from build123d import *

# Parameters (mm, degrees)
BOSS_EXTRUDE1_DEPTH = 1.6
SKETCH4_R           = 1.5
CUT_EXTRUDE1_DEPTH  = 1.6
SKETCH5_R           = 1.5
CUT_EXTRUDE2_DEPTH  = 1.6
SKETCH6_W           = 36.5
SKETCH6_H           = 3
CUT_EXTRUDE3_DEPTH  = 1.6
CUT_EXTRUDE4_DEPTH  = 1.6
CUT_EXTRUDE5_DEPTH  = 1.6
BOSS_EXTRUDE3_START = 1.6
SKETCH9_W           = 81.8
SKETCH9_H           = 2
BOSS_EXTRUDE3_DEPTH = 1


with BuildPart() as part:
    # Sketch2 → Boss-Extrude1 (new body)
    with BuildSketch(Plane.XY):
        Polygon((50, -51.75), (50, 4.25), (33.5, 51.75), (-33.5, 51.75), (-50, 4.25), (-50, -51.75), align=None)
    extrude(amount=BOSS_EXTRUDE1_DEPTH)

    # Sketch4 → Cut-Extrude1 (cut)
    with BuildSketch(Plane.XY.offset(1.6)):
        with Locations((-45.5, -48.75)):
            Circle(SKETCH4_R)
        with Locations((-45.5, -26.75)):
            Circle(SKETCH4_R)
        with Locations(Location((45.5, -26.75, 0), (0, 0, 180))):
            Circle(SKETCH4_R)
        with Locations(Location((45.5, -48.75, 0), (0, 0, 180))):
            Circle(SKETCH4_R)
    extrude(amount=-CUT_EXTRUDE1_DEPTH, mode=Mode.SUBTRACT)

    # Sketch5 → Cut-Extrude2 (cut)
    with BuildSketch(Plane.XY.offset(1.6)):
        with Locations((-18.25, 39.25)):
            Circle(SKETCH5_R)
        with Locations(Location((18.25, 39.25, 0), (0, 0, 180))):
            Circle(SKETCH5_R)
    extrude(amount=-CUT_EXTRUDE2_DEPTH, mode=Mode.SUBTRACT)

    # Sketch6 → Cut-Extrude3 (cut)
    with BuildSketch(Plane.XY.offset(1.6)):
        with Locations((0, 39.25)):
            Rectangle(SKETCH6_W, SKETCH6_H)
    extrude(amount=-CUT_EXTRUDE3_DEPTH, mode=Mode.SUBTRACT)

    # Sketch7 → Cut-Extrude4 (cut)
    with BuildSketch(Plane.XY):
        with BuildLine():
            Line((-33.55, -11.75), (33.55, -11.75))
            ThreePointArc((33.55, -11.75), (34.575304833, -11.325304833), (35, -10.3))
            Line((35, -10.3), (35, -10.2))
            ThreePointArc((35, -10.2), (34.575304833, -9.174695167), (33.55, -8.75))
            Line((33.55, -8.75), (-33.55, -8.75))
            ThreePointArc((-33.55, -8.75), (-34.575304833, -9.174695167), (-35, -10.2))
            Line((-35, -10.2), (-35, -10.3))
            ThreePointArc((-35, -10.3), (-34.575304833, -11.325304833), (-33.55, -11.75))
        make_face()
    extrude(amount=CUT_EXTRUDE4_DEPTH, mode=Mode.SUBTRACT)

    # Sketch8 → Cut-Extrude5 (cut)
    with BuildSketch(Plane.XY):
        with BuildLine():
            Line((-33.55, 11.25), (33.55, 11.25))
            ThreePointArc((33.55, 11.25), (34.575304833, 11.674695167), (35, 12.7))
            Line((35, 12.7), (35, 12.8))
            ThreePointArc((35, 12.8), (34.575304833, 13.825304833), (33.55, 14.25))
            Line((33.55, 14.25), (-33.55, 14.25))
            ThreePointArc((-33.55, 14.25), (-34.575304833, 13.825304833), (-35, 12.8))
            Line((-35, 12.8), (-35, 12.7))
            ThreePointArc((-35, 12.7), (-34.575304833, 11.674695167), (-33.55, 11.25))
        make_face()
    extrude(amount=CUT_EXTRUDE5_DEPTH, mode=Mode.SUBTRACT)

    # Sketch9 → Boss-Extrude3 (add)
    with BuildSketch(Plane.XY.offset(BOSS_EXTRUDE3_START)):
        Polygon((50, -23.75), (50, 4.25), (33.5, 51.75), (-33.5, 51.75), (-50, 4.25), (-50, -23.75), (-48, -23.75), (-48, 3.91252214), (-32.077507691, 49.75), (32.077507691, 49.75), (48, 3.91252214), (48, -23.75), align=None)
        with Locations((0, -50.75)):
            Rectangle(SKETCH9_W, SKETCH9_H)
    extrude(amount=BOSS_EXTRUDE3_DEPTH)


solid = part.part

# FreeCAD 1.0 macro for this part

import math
import FreeCAD as App
import Part
import Sketcher
from FreeCAD import Vector
Q = App.Units.Quantity


def add_polygon(sketch, points):
    """Adds a closed chain of lines whose ends are joined by coincident constraints."""
    first, n = sketch.GeometryCount, len(points)
    for a, b in zip(points, points[1:] + points[:1]):
        sketch.addGeometry(Part.LineSegment(App.Vector(*a, 0), App.Vector(*b, 0)), False)
    for i in range(n):
        sketch.addConstraint(Sketcher.Constraint("Coincident", first + i, 2, first + (i + 1) % n, 1))

doc = App.newDocument("Part")
body = doc.addObject("PartDesign::Body", "Body")

# Sketch on XY plane
sketch1 = doc.addObject("Sketcher::SketchObject", "Sketch")
body.addObject(sketch1)
sketch1.AttachmentSupport = (doc.XY_Plane, [""])
sketch1.MapMode = "FlatFace"
add_polygon(sketch1, [(50, -52), (50, 4), (34, 52), (-34, 52), (-50, 4), (-50, -52)])  # lines 0-5
sketch1.addConstraint(Sketcher.Constraint("Vertical", 0))
sketch1.addConstraint(Sketcher.Constraint("Horizontal", 2))
sketch1.addConstraint(Sketcher.Constraint("Vertical", 4))
sketch1.addConstraint(Sketcher.Constraint("Horizontal", 5))
sketch1.addConstraint(Sketcher.Constraint("Symmetric", 0, 2, 3, 2, -2))
sketch1.addConstraint(Sketcher.Constraint("Equal", 1, 3))
sketch1.addConstraint(Sketcher.Constraint("DistanceX", 2, 2, 2, 1, Q("67 mm")))
sketch1.addConstraint(Sketcher.Constraint("DistanceX", 5, 1, 5, 2, Q("100 mm")))
sketch1.addConstraint(Sketcher.Constraint("DistanceY", 0, 1, 0, 2, Q("56 mm")))
sketch1.addConstraint(Sketcher.Constraint("DistanceY", 0, 2, 1, 2, Q("47.5 mm")))
sketch1.addConstraint(Sketcher.Constraint("DistanceY", -1, 1, 0, 2, Q("4.25 mm")))
pad1 = doc.addObject("PartDesign::Pad", "Pad")
body.addObject(pad1)
pad1.Profile = sketch1
pad1.Length = 1.6

# Sketch on XY plane
sketch2 = doc.addObject("Sketcher::SketchObject", "Sketch001")
body.addObject(sketch2)
sketch2.AttachmentSupport = (doc.XY_Plane, [""])
sketch2.MapMode = "FlatFace"
sketch2.AttachmentOffset = App.Placement(Vector(0, 0, 1.6), App.Rotation())
sketch2.addGeometry(Part.Circle(Vector(-45.5, -48.8, 0), Vector(0, 0, 1), 1.5), False)
sketch2.addGeometry(Part.Circle(Vector(-45.5, -26.8, 0), Vector(0, 0, 1), 1.5), False)
sketch2.addGeometry(Part.Circle(Vector(45.5, -26.8, 0), Vector(0, 0, 1), 1.5), False)
sketch2.addGeometry(Part.Circle(Vector(45.5, -48.8, 0), Vector(0, 0, 1), 1.5), False)
sketch2.addConstraint(Sketcher.Constraint("Equal", 0, 1))
sketch2.addConstraint(Sketcher.Constraint("Equal", 1, 2))
sketch2.addConstraint(Sketcher.Constraint("Equal", 2, 3))
sketch2.addConstraint(Sketcher.Constraint("Symmetric", 1, 3, 2, 3, -2))
sketch2.addConstraint(Sketcher.Constraint("Symmetric", 0, 3, 3, 3, -2))
sketch2.addConstraint(Sketcher.Constraint("Vertical", 0, 3, 1, 3))
sketch2.addConstraint(Sketcher.Constraint("Diameter", 0, Q("3 mm")))
sketch2.addConstraint(Sketcher.Constraint("DistanceY", 0, 3, 1, 3, Q("22 mm")))
sketch2.addConstraint(Sketcher.Constraint("DistanceX", 1, 3, 2, 3, Q("91 mm")))
sketch2.addConstraint(Sketcher.Constraint("DistanceY", 0, 3, -1, 1, Q("48.75 mm")))
pocket1 = doc.addObject("PartDesign::Pocket", "Pocket")
body.addObject(pocket1)
pocket1.Profile = sketch2
pocket1.Length = 1.6

# Sketch on XY plane
sketch3 = doc.addObject("Sketcher::SketchObject", "Sketch002")
body.addObject(sketch3)
sketch3.AttachmentSupport = (doc.XY_Plane, [""])
sketch3.MapMode = "FlatFace"
sketch3.AttachmentOffset = App.Placement(Vector(0, 0, 1.6), App.Rotation())
sketch3.addGeometry(Part.Circle(Vector(-18.2, 39.2, 0), Vector(0, 0, 1), 1.5), False)
sketch3.addGeometry(Part.Circle(Vector(18.2, 39.2, 0), Vector(0, 0, 1), 1.5), False)
sketch3.addConstraint(Sketcher.Constraint("Equal", 0, 1))
sketch3.addConstraint(Sketcher.Constraint("Symmetric", 0, 3, 1, 3, -2))
sketch3.addConstraint(Sketcher.Constraint("Diameter", 0, Q("3 mm")))
sketch3.addConstraint(Sketcher.Constraint("DistanceX", 0, 3, 1, 3, Q("36.5 mm")))
sketch3.addConstraint(Sketcher.Constraint("DistanceY", -1, 1, 0, 3, Q("39.25 mm")))
pocket2 = doc.addObject("PartDesign::Pocket", "Pocket001")
body.addObject(pocket2)
pocket2.Profile = sketch3
pocket2.Length = 1.6

# Sketch on XY plane
sketch4 = doc.addObject("Sketcher::SketchObject", "Sketch003")
body.addObject(sketch4)
sketch4.AttachmentSupport = (doc.XY_Plane, [""])
sketch4.MapMode = "FlatFace"
sketch4.AttachmentOffset = App.Placement(Vector(0, 0, 1.6), App.Rotation())
add_polygon(sketch4, [(-18.2, 40.8), (-18.2, 37.8), (18.2, 37.8), (18.2, 40.8)])  # lines 0-3
sketch4.addConstraint(Sketcher.Constraint("Vertical", 0))
sketch4.addConstraint(Sketcher.Constraint("Horizontal", 1))
sketch4.addConstraint(Sketcher.Constraint("Vertical", 2))
sketch4.addConstraint(Sketcher.Constraint("Horizontal", 3))
sketch4.addConstraint(Sketcher.Constraint("DistanceY", 0, 2, 0, 1, Q("3 mm")))
sketch4.addConstraint(Sketcher.Constraint("DistanceX", 1, 1, 1, 2, Q("36.5 mm")))
sketch4.addConstraint(Sketcher.Constraint("DistanceX", 0, 2, -1, 1, Q("18.25 mm")))
sketch4.addConstraint(Sketcher.Constraint("DistanceY", -1, 1, 0, 2, Q("37.75 mm")))
pocket3 = doc.addObject("PartDesign::Pocket", "Pocket002")
body.addObject(pocket3)
pocket3.Profile = sketch4
pocket3.Length = 1.6

# Sketch on XY plane
sketch5 = doc.addObject("Sketcher::SketchObject", "Sketch004")
body.addObject(sketch5)
sketch5.AttachmentSupport = (doc.XY_Plane, [""])
sketch5.MapMode = "FlatFace"
sketch5.addGeometry(Part.LineSegment(Vector(-33.55, -11.75, 0), Vector(33.55, -11.75, 0)), False)
sketch5.addGeometry(Part.ArcOfCircle(Part.Circle(Vector(33.55, -10.3, 0), Vector(0, 0, 1), 1.45), math.radians(-90), math.radians(0)), False)
sketch5.addGeometry(Part.LineSegment(Vector(35, -10.3, 0), Vector(35, -10.2, 0)), False)
sketch5.addGeometry(Part.ArcOfCircle(Part.Circle(Vector(33.55, -10.2, 0), Vector(0, 0, 1), 1.45), math.radians(0), math.radians(90)), False)
sketch5.addGeometry(Part.LineSegment(Vector(33.55, -8.75, 0), Vector(-33.55, -8.75, 0)), False)
sketch5.addGeometry(Part.ArcOfCircle(Part.Circle(Vector(-33.55, -10.2, 0), Vector(0, 0, 1), 1.45), math.radians(90), math.radians(180)), False)
sketch5.addGeometry(Part.LineSegment(Vector(-35, -10.2, 0), Vector(-35, -10.3, 0)), False)
sketch5.addGeometry(Part.ArcOfCircle(Part.Circle(Vector(-33.55, -10.3, 0), Vector(0, 0, 1), 1.45), math.radians(180), math.radians(270)), False)
sketch5.addConstraint(Sketcher.Constraint("Tangent", 0, 2, 1, 1))
sketch5.addConstraint(Sketcher.Constraint("Tangent", 1, 2, 2, 1))
sketch5.addConstraint(Sketcher.Constraint("Tangent", 2, 2, 3, 1))
sketch5.addConstraint(Sketcher.Constraint("Tangent", 3, 2, 4, 1))
sketch5.addConstraint(Sketcher.Constraint("Tangent", 4, 2, 5, 1))
sketch5.addConstraint(Sketcher.Constraint("Tangent", 5, 2, 6, 1))
sketch5.addConstraint(Sketcher.Constraint("Tangent", 6, 2, 7, 1))
sketch5.addConstraint(Sketcher.Constraint("Tangent", 7, 2, 0, 1))
sketch5.addConstraint(Sketcher.Constraint("Horizontal", 0))
sketch5.addConstraint(Sketcher.Constraint("Vertical", 2))
sketch5.addConstraint(Sketcher.Constraint("Horizontal", 4))
sketch5.addConstraint(Sketcher.Constraint("Vertical", 6))
sketch5.addConstraint(Sketcher.Constraint("Equal", 1, 3))
sketch5.addConstraint(Sketcher.Constraint("Equal", 3, 5))
sketch5.addConstraint(Sketcher.Constraint("Equal", 5, 7))
sketch5.addConstraint(Sketcher.Constraint("Radius", 1, Q("1.45 mm")))
sketch5.addConstraint(Sketcher.Constraint("DistanceX", 0, 1, 0, 2, Q("67.1 mm")))
sketch5.addConstraint(Sketcher.Constraint("DistanceY", 2, 1, 2, 2, Q("0.1 mm")))
sketch5.addConstraint(Sketcher.Constraint("DistanceX", -1, 1, 1, 2, Q("35 mm")))
sketch5.addConstraint(Sketcher.Constraint("DistanceY", 1, 3, -1, 1, Q("10.3 mm")))
pocket4 = doc.addObject("PartDesign::Pocket", "Pocket003")
body.addObject(pocket4)
pocket4.Profile = sketch5
pocket4.Length = 1.6
pocket4.Reversed = True

# Sketch on XY plane
sketch6 = doc.addObject("Sketcher::SketchObject", "Sketch005")
body.addObject(sketch6)
sketch6.AttachmentSupport = (doc.XY_Plane, [""])
sketch6.MapMode = "FlatFace"
sketch6.addGeometry(Part.LineSegment(Vector(-33.55, 11.25, 0), Vector(33.55, 11.25, 0)), False)
sketch6.addGeometry(Part.ArcOfCircle(Part.Circle(Vector(33.55, 12.7, 0), Vector(0, 0, 1), 1.45), math.radians(-90), math.radians(0)), False)
sketch6.addGeometry(Part.LineSegment(Vector(35, 12.7, 0), Vector(35, 12.8, 0)), False)
sketch6.addGeometry(Part.ArcOfCircle(Part.Circle(Vector(33.55, 12.8, 0), Vector(0, 0, 1), 1.45), math.radians(0), math.radians(90)), False)
sketch6.addGeometry(Part.LineSegment(Vector(33.55, 14.25, 0), Vector(-33.55, 14.25, 0)), False)
sketch6.addGeometry(Part.ArcOfCircle(Part.Circle(Vector(-33.55, 12.8, 0), Vector(0, 0, 1), 1.45), math.radians(90), math.radians(180)), False)
sketch6.addGeometry(Part.LineSegment(Vector(-35, 12.8, 0), Vector(-35, 12.7, 0)), False)
sketch6.addGeometry(Part.ArcOfCircle(Part.Circle(Vector(-33.55, 12.7, 0), Vector(0, 0, 1), 1.45), math.radians(180), math.radians(270)), False)
sketch6.addConstraint(Sketcher.Constraint("Tangent", 0, 2, 1, 1))
sketch6.addConstraint(Sketcher.Constraint("Tangent", 1, 2, 2, 1))
sketch6.addConstraint(Sketcher.Constraint("Tangent", 2, 2, 3, 1))
sketch6.addConstraint(Sketcher.Constraint("Tangent", 3, 2, 4, 1))
sketch6.addConstraint(Sketcher.Constraint("Tangent", 4, 2, 5, 1))
sketch6.addConstraint(Sketcher.Constraint("Tangent", 5, 2, 6, 1))
sketch6.addConstraint(Sketcher.Constraint("Tangent", 6, 2, 7, 1))
sketch6.addConstraint(Sketcher.Constraint("Tangent", 7, 2, 0, 1))
sketch6.addConstraint(Sketcher.Constraint("Horizontal", 0))
sketch6.addConstraint(Sketcher.Constraint("Vertical", 2))
sketch6.addConstraint(Sketcher.Constraint("Horizontal", 4))
sketch6.addConstraint(Sketcher.Constraint("Vertical", 6))
sketch6.addConstraint(Sketcher.Constraint("Equal", 1, 3))
sketch6.addConstraint(Sketcher.Constraint("Equal", 3, 5))
sketch6.addConstraint(Sketcher.Constraint("Equal", 5, 7))
sketch6.addConstraint(Sketcher.Constraint("Radius", 1, Q("1.45 mm")))
sketch6.addConstraint(Sketcher.Constraint("DistanceX", 0, 1, 0, 2, Q("67.1 mm")))
sketch6.addConstraint(Sketcher.Constraint("DistanceY", 2, 1, 2, 2, Q("0.1 mm")))
sketch6.addConstraint(Sketcher.Constraint("DistanceX", -1, 1, 1, 2, Q("35 mm")))
sketch6.addConstraint(Sketcher.Constraint("DistanceY", -1, 1, 1, 3, Q("12.7 mm")))
pocket5 = doc.addObject("PartDesign::Pocket", "Pocket004")
body.addObject(pocket5)
pocket5.Profile = sketch6
pocket5.Length = 1.6
pocket5.Reversed = True

# Sketch on XY plane
sketch7 = doc.addObject("Sketcher::SketchObject", "Sketch006")
body.addObject(sketch7)
sketch7.AttachmentSupport = (doc.XY_Plane, [""])
sketch7.MapMode = "FlatFace"
sketch7.AttachmentOffset = App.Placement(Vector(0, 0, 1.6), App.Rotation())
add_polygon(sketch7, [(50, -23.8), (50, 4.2), (33.5, 51.8), (-33.5, 51.8), (-50, 4.2), (-50, -23.8), (-48, -23.8), (-48, 3.9), (-32.1, 49.8), (32.1, 49.8), (48, 3.9), (48, -23.8)])  # lines 0-11
add_polygon(sketch7, [(-40.9, -49.8), (-40.9, -51.8), (40.9, -51.8), (40.9, -49.8)])  # lines 12-15
sketch7.addConstraint(Sketcher.Constraint("Vertical", 0))
sketch7.addConstraint(Sketcher.Constraint("Horizontal", 2))
sketch7.addConstraint(Sketcher.Constraint("Vertical", 4))
sketch7.addConstraint(Sketcher.Constraint("Horizontal", 5))
sketch7.addConstraint(Sketcher.Constraint("Vertical", 6))
sketch7.addConstraint(Sketcher.Constraint("Horizontal", 8))
sketch7.addConstraint(Sketcher.Constraint("Vertical", 10))
sketch7.addConstraint(Sketcher.Constraint("Horizontal", 11))
sketch7.addConstraint(Sketcher.Constraint("Vertical", 12))
sketch7.addConstraint(Sketcher.Constraint("Horizontal", 13))
sketch7.addConstraint(Sketcher.Constraint("Vertical", 14))
sketch7.addConstraint(Sketcher.Constraint("Horizontal", 15))
sketch7.addConstraint(Sketcher.Constraint("Symmetric", 0, 2, 3, 2, -2))
sketch7.addConstraint(Sketcher.Constraint("Symmetric", 6, 2, 9, 2, -2))
sketch7.addConstraint(Sketcher.Constraint("Parallel", 3, 7))
sketch7.addConstraint(Sketcher.Constraint("Parallel", 1, 9))
sketch7.addConstraint(Sketcher.Constraint("Horizontal", 5, 2, 10, 2))
sketch7.addConstraint(Sketcher.Constraint("Equal", 11, 12))
sketch7.addConstraint(Sketcher.Constraint("Equal", 1, 3))
sketch7.addConstraint(Sketcher.Constraint("DistanceX", 2, 2, 2, 1, Q("67 mm")))
sketch7.addConstraint(Sketcher.Constraint("DistanceX", 5, 1, 5, 2, Q("2 mm")))
sketch7.addConstraint(Sketcher.Constraint("DistanceY", 0, 1, 0, 2, Q("28 mm")))
sketch7.addConstraint(Sketcher.Constraint("DistanceX", 13, 1, 13, 2, Q("81.8 mm")))
sketch7.addConstraint(Sketcher.Constraint("DistanceX", -1, 1, 0, 2, Q("50 mm")))
sketch7.addConstraint(Sketcher.Constraint("DistanceY", 7, 2, 2, 2, Q("2 mm")))
sketch7.addConstraint(Sketcher.Constraint("DistanceY", 12, 2, 5, 2, Q("28 mm")))
sketch7.addConstraint(Sketcher.Constraint("DistanceX", 12, 2, -1, 1, Q("40.9 mm")))
sketch7.addConstraint(Sketcher.Constraint("DistanceY", 0, 2, 1, 2, Q("47.5 mm")))
sketch7.addConstraint(Sketcher.Constraint("DistanceY", -1, 1, 0, 2, Q("4.25 mm")))
sketch7.addConstraint(Sketcher.Constraint("DistanceX", 8, 1, 8, 2, Q("64.155015 mm")))
pad2 = doc.addObject("PartDesign::Pad", "Pad001")
body.addObject(pad2)
pad2.Profile = sketch7
pad2.Length = 1

doc.recompute()
